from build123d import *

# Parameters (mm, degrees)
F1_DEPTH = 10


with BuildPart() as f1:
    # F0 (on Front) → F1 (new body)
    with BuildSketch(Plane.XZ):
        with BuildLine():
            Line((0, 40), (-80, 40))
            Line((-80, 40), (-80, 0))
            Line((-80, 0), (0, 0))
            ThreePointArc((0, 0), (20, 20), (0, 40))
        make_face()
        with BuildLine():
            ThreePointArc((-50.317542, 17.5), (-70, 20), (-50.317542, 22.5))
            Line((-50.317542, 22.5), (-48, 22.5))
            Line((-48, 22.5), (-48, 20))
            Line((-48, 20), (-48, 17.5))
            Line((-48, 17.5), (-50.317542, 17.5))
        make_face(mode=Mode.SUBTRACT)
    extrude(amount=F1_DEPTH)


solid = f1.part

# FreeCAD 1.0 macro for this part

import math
import FreeCAD as App
import Part
import Sketcher
Q = App.Units.Quantity

doc = App.newDocument("Part")
body = doc.addObject("PartDesign::Body", "Body")

# Sketch on XZ plane
sketch1 = body.newObject("Sketcher::SketchObject", "Sketch")
sketch1.AttachmentSupport = (doc.getObject("XZ_Plane"), [""])
sketch1.MapMode = "FlatFace"
sketch1.addGeometry(Part.LineSegment(App.Vector(0, 40, 0), App.Vector(-80, 40, 0)), False)
sketch1.addGeometry(Part.LineSegment(App.Vector(-80, 40, 0), App.Vector(-80, 0, 0)), False)
sketch1.addGeometry(Part.LineSegment(App.Vector(-80, 0, 0), App.Vector(0, 0, 0)), False)
sketch1.addGeometry(Part.ArcOfCircle(Part.Circle(App.Vector(0, 20, 0), App.Vector(0, 0, 1), 20), math.radians(-90), math.radians(90)), False)
sketch1.addGeometry(Part.LineSegment(App.Vector(-48, 17.5, 0), App.Vector(-50.3, 17.5, 0)), False)
sketch1.addGeometry(Part.ArcOfCircle(Part.Circle(App.Vector(-60, 20, 0), App.Vector(0, 0, 1), 10), math.radians(14), math.radians(346)), False)
sketch1.addGeometry(Part.LineSegment(App.Vector(-50.3, 22.5, 0), App.Vector(-48, 22.5, 0)), False)
sketch1.addGeometry(Part.LineSegment(App.Vector(-48, 22.5, 0), App.Vector(-48, 17.5, 0)), False)
sketch1.addConstraint(Sketcher.Constraint("Coincident", 0, 2, 1, 1))
sketch1.addConstraint(Sketcher.Constraint("Coincident", 1, 2, 2, 1))
sketch1.addConstraint(Sketcher.Constraint("Tangent", 2, 2, 3, 1))
sketch1.addConstraint(Sketcher.Constraint("Tangent", 3, 2, 0, 1))
sketch1.addConstraint(Sketcher.Constraint("Coincident", 4, 2, 5, 2))
sketch1.addConstraint(Sketcher.Constraint("Coincident", 5, 1, 6, 1))
sketch1.addConstraint(Sketcher.Constraint("Coincident", 6, 2, 7, 1))
sketch1.addConstraint(Sketcher.Constraint("Coincident", 7, 2, 4, 1))
sketch1.addConstraint(Sketcher.Constraint("Horizontal", 0))
sketch1.addConstraint(Sketcher.Constraint("Vertical", 1))
sketch1.addConstraint(Sketcher.Constraint("Horizontal", 2))
sketch1.addConstraint(Sketcher.Constraint("Horizontal", 4))
sketch1.addConstraint(Sketcher.Constraint("Horizontal", 6))
sketch1.addConstraint(Sketcher.Constraint("Vertical", 7))
sketch1.addConstraint(Sketcher.Constraint("Coincident", 2, 2, -1, 1))
sketch1.addConstraint(Sketcher.Constraint("Horizontal", 3, 3, 5, 3))
sketch1.addConstraint(Sketcher.Constraint("Vertical", 4, 2, 5, 1))
sketch1.addConstraint(Sketcher.Constraint("Radius", 3, Q("20 mm")))
sketch1.addConstraint(Sketcher.Constraint("Radius", 5, Q("10 mm")))
sketch1.addConstraint(Sketcher.Constraint("DistanceX", 0, 2, 0, 1, Q("80 mm")))
sketch1.addConstraint(Sketcher.Constraint("DistanceY", 7, 2, 7, 1, Q("5 mm")))
sketch1.addConstraint(Sketcher.Constraint("DistanceX", 5, 3, -1, 1, Q("60 mm")))
sketch1.addConstraint(Sketcher.Constraint("DistanceX", 6, 2, -1, 1, Q("48 mm")))
pad1 = body.newObject("PartDesign::Pad", "Pad")
pad1.Profile = sketch1
pad1.Length = 10

doc.recompute()
